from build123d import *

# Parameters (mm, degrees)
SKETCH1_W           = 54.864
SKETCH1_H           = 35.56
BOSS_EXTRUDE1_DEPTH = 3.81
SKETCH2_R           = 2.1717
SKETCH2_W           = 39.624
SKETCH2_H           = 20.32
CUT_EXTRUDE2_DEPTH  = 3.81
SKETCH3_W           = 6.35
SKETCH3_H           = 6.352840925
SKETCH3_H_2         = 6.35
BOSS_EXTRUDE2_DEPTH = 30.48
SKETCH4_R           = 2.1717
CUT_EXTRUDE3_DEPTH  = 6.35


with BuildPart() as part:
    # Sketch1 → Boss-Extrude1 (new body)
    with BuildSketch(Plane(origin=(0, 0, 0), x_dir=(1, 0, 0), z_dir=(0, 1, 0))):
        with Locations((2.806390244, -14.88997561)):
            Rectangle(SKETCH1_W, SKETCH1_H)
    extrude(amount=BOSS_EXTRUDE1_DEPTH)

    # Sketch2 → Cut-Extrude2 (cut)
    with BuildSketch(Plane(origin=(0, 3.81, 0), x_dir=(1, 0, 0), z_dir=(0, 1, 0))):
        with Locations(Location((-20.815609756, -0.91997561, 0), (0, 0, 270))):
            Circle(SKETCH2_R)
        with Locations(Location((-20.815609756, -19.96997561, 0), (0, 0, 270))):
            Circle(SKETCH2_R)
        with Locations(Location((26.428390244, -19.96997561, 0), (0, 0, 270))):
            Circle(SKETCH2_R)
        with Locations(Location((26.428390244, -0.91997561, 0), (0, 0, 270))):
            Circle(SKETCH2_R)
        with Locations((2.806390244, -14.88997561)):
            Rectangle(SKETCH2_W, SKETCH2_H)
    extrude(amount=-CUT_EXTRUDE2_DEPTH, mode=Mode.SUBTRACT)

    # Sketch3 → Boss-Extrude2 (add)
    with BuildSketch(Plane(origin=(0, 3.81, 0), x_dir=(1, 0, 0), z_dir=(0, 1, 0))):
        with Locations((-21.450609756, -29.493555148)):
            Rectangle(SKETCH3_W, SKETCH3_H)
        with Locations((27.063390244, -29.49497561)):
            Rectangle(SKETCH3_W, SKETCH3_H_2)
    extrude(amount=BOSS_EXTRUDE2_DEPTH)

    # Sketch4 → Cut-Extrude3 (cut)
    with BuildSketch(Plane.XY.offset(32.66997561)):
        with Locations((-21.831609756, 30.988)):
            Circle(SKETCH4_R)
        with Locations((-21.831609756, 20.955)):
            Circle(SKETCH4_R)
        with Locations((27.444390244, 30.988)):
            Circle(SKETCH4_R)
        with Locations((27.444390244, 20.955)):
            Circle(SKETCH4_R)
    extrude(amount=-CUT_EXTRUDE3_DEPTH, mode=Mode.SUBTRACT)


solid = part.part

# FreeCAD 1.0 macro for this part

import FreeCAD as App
import Part
import Sketcher

V = App.Vector
Q = App.Units.Quantity


def add_polygon(sketch, points):
    """Adds a closed chain of lines whose ends are joined by coincident constraints."""
    first, n = sketch.GeometryCount, len(points)
    for a, b in zip(points, points[1:] + points[:1]):
        sketch.addGeometry(Part.LineSegment(App.Vector(*a, 0), App.Vector(*b, 0)), False)
    for i in range(n):
        sketch.addConstraint(Sketcher.Constraint("Coincident", first + i, 2, first + (i + 1) % n, 1))

doc = App.newDocument("Part")
body = doc.addObject("PartDesign::Body", "Body")

sketch1 = body.newObject("Sketcher::SketchObject", "Sketch")
sketch1.AttachmentSupport = (doc.getObject("XZ_Plane"), [""])
sketch1.MapMode = "FlatFace"
add_polygon(sketch1, [(-25, -3), (-25, 33), (30, 33), (30, -3)])
sketch1.addConstraint(Sketcher.Constraint("Vertical", 0))
sketch1.addConstraint(Sketcher.Constraint("Horizontal", 1))
sketch1.addConstraint(Sketcher.Constraint("Vertical", 2))
sketch1.addConstraint(Sketcher.Constraint("Horizontal", 3))
sketch1.addConstraint(Sketcher.Constraint("DistanceY", 0, 1, 0, 2, Q("1.4 in")))
sketch1.addConstraint(Sketcher.Constraint("DistanceX", 1, 1, 1, 2, Q("2.16 in")))
sketch1.addConstraint(Sketcher.Constraint("DistanceX", 0, 2, -1, 1, Q("24.62561 mm")))
sketch1.addConstraint(Sketcher.Constraint("DistanceY", -1, 1, 0, 2, Q("32.669976 mm")))
pad1 = body.newObject("PartDesign::Pad", "Pad")
pad1.Profile = sketch1
pad1.Length = Q("0.15 in")
pad1.Reversed = True

sketch2 = body.newObject("Sketcher::SketchObject", "Sketch001")
sketch2.AttachmentSupport = (doc.getObject("XZ_Plane"), [""])
sketch2.MapMode = "FlatFace"
sketch2.AttachmentOffset = App.Placement(V(0, 0, -0.15 * 25.4), App.Rotation())
sketch2.addGeometry(Part.Circle(V(-20.8, 0.9, 0), V(0, 0, 1), 2.2), False)
sketch2.addGeometry(Part.Circle(V(-20.8, 20, 0), V(0, 0, 1), 2.2), False)
sketch2.addGeometry(Part.Circle(V(26.4, 20, 0), V(0, 0, 1), 2.2), False)
sketch2.addGeometry(Part.Circle(V(26.4, 0.9, 0), V(0, 0, 1), 2.2), False)
add_polygon(sketch2, [(-17, 4.7), (-17, 25), (22.6, 25), (22.6, 4.7)])
sketch2.addConstraint(Sketcher.Constraint("Vertical", 4))
sketch2.addConstraint(Sketcher.Constraint("Horizontal", 5))
sketch2.addConstraint(Sketcher.Constraint("Vertical", 6))
sketch2.addConstraint(Sketcher.Constraint("Horizontal", 7))
sketch2.addConstraint(Sketcher.Constraint("Equal", 0, 1))
sketch2.addConstraint(Sketcher.Constraint("Equal", 1, 2))
sketch2.addConstraint(Sketcher.Constraint("Equal", 2, 3))
sketch2.addConstraint(Sketcher.Constraint("Horizontal", 1, 3, 2, 3))
sketch2.addConstraint(Sketcher.Constraint("Horizontal", 0, 3, 3, 3))
sketch2.addConstraint(Sketcher.Constraint("Vertical", 0, 3, 1, 3))
sketch2.addConstraint(Sketcher.Constraint("Vertical", 2, 3, 3, 3))
sketch2.addConstraint(Sketcher.Constraint("Diameter", 0, Q("0.171 in")))
sketch2.addConstraint(Sketcher.Constraint("DistanceY", 4, 1, 4, 2, Q("0.8 in")))
sketch2.addConstraint(Sketcher.Constraint("DistanceX", 5, 1, 5, 2, Q("1.56 in")))
sketch2.addConstraint(Sketcher.Constraint("DistanceY", 1, 3, 4, 2, Q("0.2 in")))
sketch2.addConstraint(Sketcher.Constraint("DistanceY", 0, 3, 1, 3, Q("0.75 in")))
sketch2.addConstraint(Sketcher.Constraint("DistanceX", 1, 3, 2, 3, Q("1.86 in")))
sketch2.addConstraint(Sketcher.Constraint("DistanceX", 1, 3, 4, 2, Q("0.15 in")))
sketch2.addConstraint(Sketcher.Constraint("DistanceX", 0, 3, -1, 1, Q("20.81561 mm")))
sketch2.addConstraint(Sketcher.Constraint("DistanceY", -1, 1, 0, 3, Q("0.919976 mm")))
pocket1 = body.newObject("PartDesign::Pocket", "Pocket")
pocket1.Profile = sketch2
pocket1.Length = Q("0.15 in")
pocket1.Reversed = True

sketch3 = body.newObject("Sketcher::SketchObject", "Sketch002")
sketch3.AttachmentSupport = (doc.getObject("XZ_Plane"), [""])
sketch3.MapMode = "FlatFace"
sketch3.AttachmentOffset = App.Placement(V(0, 0, -0.15 * 25.4), App.Rotation())
add_polygon(sketch3, [(-25, 26), (-25, 33), (-18, 33), (-18, 26)])
add_polygon(sketch3, [(24, 26), (24, 33), (30, 33), (30, 26)])
sketch3.addConstraint(Sketcher.Constraint("Vertical", 0))
sketch3.addConstraint(Sketcher.Constraint("Horizontal", 1))
sketch3.addConstraint(Sketcher.Constraint("Vertical", 2))
sketch3.addConstraint(Sketcher.Constraint("Horizontal", 3))
sketch3.addConstraint(Sketcher.Constraint("Vertical", 4))
sketch3.addConstraint(Sketcher.Constraint("Horizontal", 5))
sketch3.addConstraint(Sketcher.Constraint("Vertical", 6))
sketch3.addConstraint(Sketcher.Constraint("Horizontal", 7))
sketch3.addConstraint(Sketcher.Constraint("Horizontal", 1, 2, 4, 2))
sketch3.addConstraint(Sketcher.Constraint("Equal", 3, 5))
sketch3.addConstraint(Sketcher.Constraint("Equal", 7, 4))
sketch3.addConstraint(Sketcher.Constraint("DistanceX", 1, 1, 1, 2, Q("0.25 in")))
sketch3.addConstraint(Sketcher.Constraint("DistanceX", 1, 2, 4, 2, Q("1.66 in")))
sketch3.addConstraint(Sketcher.Constraint("DistanceY", 0, 1, 0, 2, Q("6.352841 mm")))
sketch3.addConstraint(Sketcher.Constraint("DistanceX", 0, 2, -1, 1, Q("24.62561 mm")))
sketch3.addConstraint(Sketcher.Constraint("DistanceY", -1, 1, 0, 2, Q("32.669976 mm")))
pad2 = body.newObject("PartDesign::Pad", "Pad001")
pad2.Profile = sketch3
pad2.Length = Q("1.2 in")
pad2.Reversed = True

sketch4 = body.newObject("Sketcher::SketchObject", "Sketch003")
sketch4.AttachmentSupport = (doc.getObject("XY_Plane"), [""])
sketch4.MapMode = "FlatFace"
sketch4.AttachmentOffset = App.Placement(V(0, 0, 32.669976), App.Rotation())
sketch4.addGeometry(Part.Circle(V(-21.8, 31, 0), V(0, 0, 1), 2.2), False)
sketch4.addGeometry(Part.Circle(V(-21.8, 21, 0), V(0, 0, 1), 2.2), False)
sketch4.addGeometry(Part.Circle(V(27.4, 31, 0), V(0, 0, 1), 2.2), False)
sketch4.addGeometry(Part.Circle(V(27.4, 21, 0), V(0, 0, 1), 2.2), False)
sketch4.addConstraint(Sketcher.Constraint("Equal", 0, 1))
sketch4.addConstraint(Sketcher.Constraint("Equal", 1, 2))
sketch4.addConstraint(Sketcher.Constraint("Equal", 2, 3))
sketch4.addConstraint(Sketcher.Constraint("Horizontal", 0, 3, 2, 3))
sketch4.addConstraint(Sketcher.Constraint("Horizontal", 1, 3, 3, 3))
sketch4.addConstraint(Sketcher.Constraint("Vertical", 0, 3, 1, 3))
sketch4.addConstraint(Sketcher.Constraint("Vertical", 2, 3, 3, 3))
sketch4.addConstraint(Sketcher.Constraint("Diameter", 0, Q("0.171 in")))
sketch4.addConstraint(Sketcher.Constraint("DistanceY", -1, 1, 0, 3, Q("1.22 in")))
sketch4.addConstraint(Sketcher.Constraint("DistanceX", 0, 3, 2, 3, Q("1.94 in")))
sketch4.addConstraint(Sketcher.Constraint("DistanceY", -1, 1, 1, 3, Q("0.825 in")))
sketch4.addConstraint(Sketcher.Constraint("DistanceX", 0, 3, -1, 1, Q("21.83161 mm")))
pocket2 = body.newObject("PartDesign::Pocket", "Pocket001")
pocket2.Profile = sketch4
pocket2.Length = Q("0.25 in")

doc.recompute()
